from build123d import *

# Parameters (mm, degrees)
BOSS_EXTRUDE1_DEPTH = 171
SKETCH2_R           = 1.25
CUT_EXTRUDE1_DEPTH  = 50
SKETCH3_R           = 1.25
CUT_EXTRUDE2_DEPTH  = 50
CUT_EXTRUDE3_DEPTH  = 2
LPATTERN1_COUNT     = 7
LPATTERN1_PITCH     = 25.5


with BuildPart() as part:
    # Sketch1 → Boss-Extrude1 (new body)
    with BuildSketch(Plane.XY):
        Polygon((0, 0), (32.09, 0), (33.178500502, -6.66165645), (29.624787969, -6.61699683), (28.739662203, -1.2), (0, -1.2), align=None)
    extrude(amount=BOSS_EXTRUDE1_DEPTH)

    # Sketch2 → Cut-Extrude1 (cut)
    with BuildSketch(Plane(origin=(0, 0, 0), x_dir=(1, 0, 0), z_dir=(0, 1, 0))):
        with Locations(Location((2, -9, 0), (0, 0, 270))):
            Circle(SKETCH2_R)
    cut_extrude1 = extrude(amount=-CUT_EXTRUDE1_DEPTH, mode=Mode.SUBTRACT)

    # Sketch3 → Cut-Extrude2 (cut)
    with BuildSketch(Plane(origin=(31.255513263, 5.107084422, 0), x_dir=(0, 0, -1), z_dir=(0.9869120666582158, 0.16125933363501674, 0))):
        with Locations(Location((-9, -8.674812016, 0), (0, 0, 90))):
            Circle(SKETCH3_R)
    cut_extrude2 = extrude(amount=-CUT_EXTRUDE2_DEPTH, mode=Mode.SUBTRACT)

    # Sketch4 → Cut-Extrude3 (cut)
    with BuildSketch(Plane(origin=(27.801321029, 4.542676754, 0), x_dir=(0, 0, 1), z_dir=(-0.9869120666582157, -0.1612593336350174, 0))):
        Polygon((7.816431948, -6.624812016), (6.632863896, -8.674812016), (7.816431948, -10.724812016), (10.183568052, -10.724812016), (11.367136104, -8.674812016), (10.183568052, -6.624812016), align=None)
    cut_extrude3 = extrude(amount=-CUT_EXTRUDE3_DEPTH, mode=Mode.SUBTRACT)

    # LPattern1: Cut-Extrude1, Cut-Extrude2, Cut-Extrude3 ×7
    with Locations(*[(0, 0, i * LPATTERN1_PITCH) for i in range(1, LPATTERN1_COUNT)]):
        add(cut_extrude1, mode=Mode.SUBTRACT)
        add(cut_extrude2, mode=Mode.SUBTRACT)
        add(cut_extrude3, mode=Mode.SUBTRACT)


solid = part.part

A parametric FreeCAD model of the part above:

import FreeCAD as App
import Part
import Sketcher

V = App.Vector
Q = App.Units.Quantity

doc = App.newDocument("Part")
body = doc.addObject("PartDesign::Body", "Body")

# Sketch on XY plane
sketch1 = doc.addObject("Sketcher::SketchObject", "Sketch")
body.addObject(sketch1)
sketch1.AttachmentSupport = (doc.XY_Plane, [""])
sketch1.MapMode = "FlatFace"
sketch1.addGeometry(Part.LineSegment(V(32.1, 0, 0), V(0, 0, 0)), False)
sketch1.addGeometry(Part.LineSegment(V(0, 0, 0), V(0, -1.2, 0)), False)
sketch1.addGeometry(Part.LineSegment(V(0, -1.2, 0), V(28.7, -1.2, 0)), False)
sketch1.addGeometry(Part.LineSegment(V(28.7, -1.2, 0), V(29.6, -6.6, 0)), False)
sketch1.addGeometry(Part.LineSegment(V(29.6, -6.6, 0), V(33.2, -6.7, 0)), False)
sketch1.addGeometry(Part.LineSegment(V(33.2, -6.7, 0), V(32.1, 0, 0)), False)
sketch1.addConstraint(Sketcher.Constraint("Coincident", 0, 2, 1, 1))
sketch1.addConstraint(Sketcher.Constraint("Coincident", 1, 2, 2, 1))
sketch1.addConstraint(Sketcher.Constraint("Coincident", 2, 2, 3, 1))
sketch1.addConstraint(Sketcher.Constraint("Coincident", 3, 2, 4, 1))
sketch1.addConstraint(Sketcher.Constraint("Coincident", 4, 2, 5, 1))
sketch1.addConstraint(Sketcher.Constraint("Coincident", 5, 2, 0, 1))
sketch1.addConstraint(Sketcher.Constraint("Horizontal", 0))
sketch1.addConstraint(Sketcher.Constraint("Vertical", 1))
sketch1.addConstraint(Sketcher.Constraint("Horizontal", 2))
sketch1.addConstraint(Sketcher.Constraint("Coincident", 0, 2, -1, 1))
sketch1.addConstraint(Sketcher.Constraint("Parallel", 3, 5))
sketch1.addConstraint(Sketcher.Constraint("DistanceY", 1, 2, 1, 1, Q("1.2 mm")))
sketch1.addConstraint(Sketcher.Constraint("DistanceX", 0, 2, 0, 1, Q("32.09 mm")))
sketch1.addConstraint(Sketcher.Constraint("Angle", 3, Q("-80.72 deg")))
sketch1.addConstraint(Sketcher.Constraint("Angle", 4, Q("-0.72 deg")))
sketch1.addConstraint(Sketcher.Constraint("Distance", 5, Q("6.75 mm")))
sketch1.addConstraint(Sketcher.Constraint("DistanceX", 2, 1, 2, 2, Q("28.739662 mm")))
pad1 = doc.addObject("PartDesign::Pad", "Pad")
body.addObject(pad1)
pad1.Profile = sketch1
pad1.Length = 171

# Sketch on XZ plane
sketch2 = doc.addObject("Sketcher::SketchObject", "Sketch001")
body.addObject(sketch2)
sketch2.AttachmentSupport = (doc.XZ_Plane, [""])
sketch2.MapMode = "FlatFace"
sketch2.addGeometry(Part.Circle(V(2, 9, 0), V(0, 0, 1), 1.2), False)
sketch2.addConstraint(Sketcher.Constraint("Diameter", 0, Q("2.5 mm")))
sketch2.addConstraint(Sketcher.Constraint("DistanceX", -1, 1, 0, 3, Q("2 mm")))
sketch2.addConstraint(Sketcher.Constraint("DistanceY", -1, 1, 0, 3, Q("9 mm")))
pocket1 = doc.addObject("PartDesign::Pocket", "Pocket")
body.addObject(pocket1)
pocket1.Profile = sketch2
pocket1.Length = 50
pocket1.Reversed = True

# Sketch on an angled plane
sketch3 = doc.addObject("Sketcher::SketchObject", "Sketch002")
body.addObject(sketch3)
sketch3.Placement = App.Placement(V(31.255513, 5.107084, 0), App.Rotation(V(0, 0, -1), V(-0.161259334, 0.986912067, 0), V(0.986912067, 0.161259334, 0), "ZXY"))
sketch3.addGeometry(Part.Circle(V(-9, -8.7, 0), V(0, 0, 1), 1.2), False)
sketch3.addConstraint(Sketcher.Constraint("Diameter", 0, Q("2.5 mm")))
sketch3.addConstraint(Sketcher.Constraint("DistanceX", 0, 3, -1, 1, Q("9 mm")))
sketch3.addConstraint(Sketcher.Constraint("DistanceY", 0, 3, -1, 1, Q("8.674812 mm")))
pocket2 = doc.addObject("PartDesign::Pocket", "Pocket001")
body.addObject(pocket2)
pocket2.Profile = sketch3
pocket2.Length = 50

# Sketch on an angled plane
sketch4 = doc.addObject("Sketcher::SketchObject", "Sketch003")
body.addObject(sketch4)
sketch4.Placement = App.Placement(V(27.801321, 4.542677, 0), App.Rotation(V(0, 0, 1), V(-0.161259334, 0.986912067, 0), V(-0.986912067, -0.161259334, 0), "ZXY"))
sketch4.addGeometry(Part.LineSegment(V(7.8, -6.6, 0), V(6.6, -8.7, 0)), False)
sketch4.addGeometry(Part.LineSegment(V(6.6, -8.7, 0), V(7.8, -10.7, 0)), False)
sketch4.addGeometry(Part.LineSegment(V(7.8, -10.7, 0), V(10.2, -10.7, 0)), False)
sketch4.addGeometry(Part.LineSegment(V(10.2, -10.7, 0), V(11.4, -8.7, 0)), False)
sketch4.addGeometry(Part.LineSegment(V(11.4, -8.7, 0), V(10.2, -6.6, 0)), False)
sketch4.addGeometry(Part.LineSegment(V(10.2, -6.6, 0), V(7.8, -6.6, 0)), False)
sketch4.addConstraint(Sketcher.Constraint("Coincident", 0, 2, 1, 1))
sketch4.addConstraint(Sketcher.Constraint("Coincident", 1, 2, 2, 1))
sketch4.addConstraint(Sketcher.Constraint("Coincident", 2, 2, 3, 1))
sketch4.addConstraint(Sketcher.Constraint("Coincident", 3, 2, 4, 1))
sketch4.addConstraint(Sketcher.Constraint("Coincident", 4, 2, 5, 1))
sketch4.addConstraint(Sketcher.Constraint("Coincident", 5, 2, 0, 1))
sketch4.addConstraint(Sketcher.Constraint("Horizontal", 2))
sketch4.addConstraint(Sketcher.Constraint("Horizontal", 5))
sketch4.addConstraint(Sketcher.Constraint("Parallel", 0, 3))
sketch4.addConstraint(Sketcher.Constraint("Parallel", 1, 4))
sketch4.addConstraint(Sketcher.Constraint("Horizontal", 0, 2, 3, 2))
sketch4.addConstraint(Sketcher.Constraint("Vertical", 2, 2, 4, 2))
sketch4.addConstraint(Sketcher.Constraint("Vertical", 1, 2, 5, 2))
sketch4.addConstraint(Sketcher.Constraint("Angle", 0, Q("-120 deg")))
sketch4.addConstraint(Sketcher.Constraint("DistanceY", 2, 2, 4, 2, Q("4.1 mm")))
sketch4.addConstraint(Sketcher.Constraint("DistanceX", 2, 1, 2, 2, Q("2.367136 mm")))
sketch4.addConstraint(Sketcher.Constraint("DistanceX", -1, 1, 1, 2, Q("7.816432 mm")))
sketch4.addConstraint(Sketcher.Constraint("DistanceY", 0, 2, -1, 1, Q("8.674812 mm")))
pocket3 = doc.addObject("PartDesign::Pocket", "Pocket002")
body.addObject(pocket3)
pocket3.Profile = sketch4
pocket3.Length = 2
doc.recompute()

linearpattern = doc.addObject("PartDesign::LinearPattern", "LinearPattern")
body.addObject(linearpattern)
linearpattern.Originals = [pocket1, pocket2, pocket3]
linearpattern.Direction = (doc.Z_Axis, [""])
linearpattern.Mode = "offset"
linearpattern.Offset = 25.5
linearpattern.Occurrences = 7
body.Tip = linearpattern

doc.recompute()
